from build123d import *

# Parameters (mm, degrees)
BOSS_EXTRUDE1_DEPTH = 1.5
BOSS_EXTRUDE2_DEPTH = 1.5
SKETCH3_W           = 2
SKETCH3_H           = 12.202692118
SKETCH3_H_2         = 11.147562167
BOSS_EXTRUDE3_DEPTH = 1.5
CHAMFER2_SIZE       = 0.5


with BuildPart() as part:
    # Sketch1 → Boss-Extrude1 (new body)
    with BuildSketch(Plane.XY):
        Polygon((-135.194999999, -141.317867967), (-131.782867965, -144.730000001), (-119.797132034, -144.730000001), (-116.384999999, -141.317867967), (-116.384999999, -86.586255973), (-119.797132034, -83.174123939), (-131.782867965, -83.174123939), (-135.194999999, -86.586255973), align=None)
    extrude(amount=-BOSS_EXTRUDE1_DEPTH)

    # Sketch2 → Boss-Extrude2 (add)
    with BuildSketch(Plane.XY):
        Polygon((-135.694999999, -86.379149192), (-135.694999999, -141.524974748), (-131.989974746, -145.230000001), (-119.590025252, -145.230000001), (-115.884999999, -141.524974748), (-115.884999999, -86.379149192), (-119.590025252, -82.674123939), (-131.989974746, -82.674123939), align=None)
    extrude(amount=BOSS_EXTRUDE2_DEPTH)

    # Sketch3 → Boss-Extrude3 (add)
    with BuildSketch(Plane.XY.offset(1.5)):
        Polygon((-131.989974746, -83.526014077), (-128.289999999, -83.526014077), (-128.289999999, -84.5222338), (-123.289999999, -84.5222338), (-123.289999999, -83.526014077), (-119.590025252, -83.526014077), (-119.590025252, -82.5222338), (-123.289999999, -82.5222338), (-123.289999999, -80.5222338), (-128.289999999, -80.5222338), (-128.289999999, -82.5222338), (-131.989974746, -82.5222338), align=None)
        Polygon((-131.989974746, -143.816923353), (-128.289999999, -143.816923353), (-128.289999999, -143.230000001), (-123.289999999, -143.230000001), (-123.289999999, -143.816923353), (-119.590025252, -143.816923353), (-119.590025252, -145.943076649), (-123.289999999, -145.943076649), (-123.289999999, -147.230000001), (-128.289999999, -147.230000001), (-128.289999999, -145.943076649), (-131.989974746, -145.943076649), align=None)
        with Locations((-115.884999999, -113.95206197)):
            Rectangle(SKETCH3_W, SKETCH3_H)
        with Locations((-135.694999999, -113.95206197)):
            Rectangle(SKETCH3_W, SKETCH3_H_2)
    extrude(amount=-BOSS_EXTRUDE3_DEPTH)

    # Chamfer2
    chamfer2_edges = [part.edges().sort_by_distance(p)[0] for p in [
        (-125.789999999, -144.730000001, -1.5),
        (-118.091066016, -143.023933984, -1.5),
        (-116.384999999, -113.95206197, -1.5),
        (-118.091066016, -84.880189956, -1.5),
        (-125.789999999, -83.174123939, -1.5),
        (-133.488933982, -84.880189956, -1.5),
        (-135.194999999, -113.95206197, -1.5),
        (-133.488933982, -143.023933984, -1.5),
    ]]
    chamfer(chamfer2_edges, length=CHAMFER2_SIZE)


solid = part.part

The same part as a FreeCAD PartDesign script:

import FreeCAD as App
import Part
import Sketcher

V = App.Vector
Q = App.Units.Quantity


def edges_at(feature, points):
    """Names of the edges that pass closest to the given points."""
    edges = feature.Shape.Edges
    near = lambda p: min(range(len(edges)), key=lambda i: edges[i].distToShape(Part.Vertex(*p))[0])
    return sorted({f"Edge{near(p) + 1}" for p in points})


def add_polygon(sketch, points):
    """Adds a closed chain of lines whose ends are joined by coincident constraints."""
    first, n = sketch.GeometryCount, len(points)
    for a, b in zip(points, points[1:] + points[:1]):
        sketch.addGeometry(Part.LineSegment(App.Vector(*a, 0), App.Vector(*b, 0)), False)
    for i in range(n):
        sketch.addConstraint(Sketcher.Constraint("Coincident", first + i, 2, first + (i + 1) % n, 1))

doc = App.newDocument("Part")
params = doc.addObject("Spreadsheet::Sheet", "Params")
for row, (alias, value) in enumerate([
    ("pad1_length", "1.5 mm"),
    ("pad2_length", "1.5 mm"),
    ("sketch3_width", "5 mm"),
    ("sketch3_width2", "2 mm"),
    ("pad3_length", "1.5 mm"),
    ("chamfer_size", "0.5 mm"),
], start=1):
    params.set(f"A{row}", alias)
    params.set(f"B{row}", "=" + value)
    params.setAlias(f"B{row}", alias)

body = doc.addObject("PartDesign::Body", "Body")

# Sketch on XY plane
sketch1 = body.newObject("Sketcher::SketchObject", "Sketch")
sketch1.AttachmentSupport = (doc.getObject("XY_Plane"), [""])
sketch1.MapMode = "FlatFace"
add_polygon(sketch1, [(-135.195, -141.317868), (-131.782868, -144.73), (-119.797132, -144.73), (-116.385, -141.317868), (-116.385, -86.586256), (-119.797132, -83.174124), (-131.782868, -83.174124), (-135.195, -86.586256)])  # lines 0-7
sketch1.addConstraint([
    Sketcher.Constraint("Horizontal", 1),
    Sketcher.Constraint("Vertical", 3),
    Sketcher.Constraint("Horizontal", 5),
    Sketcher.Constraint("Vertical", 7),
    Sketcher.Constraint("Perpendicular", 0, 2),
    Sketcher.Constraint("Perpendicular", 2, 4),
    Sketcher.Constraint("Perpendicular", 4, 6),
    Sketcher.Constraint("Horizontal", 3, 2, 6, 2),
    Sketcher.Constraint("Horizontal", 2, 2, 7, 2),
    Sketcher.Constraint("Vertical", 1, 2, 4, 2),
    Sketcher.Constraint("Vertical", 0, 2, 5, 2),
    Sketcher.Constraint("DistanceY", 0, 2, -1, 1, Q("144.73 mm")),
    Sketcher.Constraint("DistanceX", 6, 2, 3, 2, Q("18.81 mm")),
    Sketcher.Constraint("DistanceX", 2, 2, -1, 1, Q("116.385 mm")),
    Sketcher.Constraint("DistanceY", 3, 1, 3, 2, Q("54.731612 mm")),
    Sketcher.Constraint("DistanceX", 1, 1, 1, 2, Q("11.985736 mm")),
])
pad1 = body.newObject("PartDesign::Pad", "Pad")
pad1.Profile = sketch1
pad1.setExpression("Length", "Params.pad1_length")
pad1.Reversed = True

# Sketch on XY plane
sketch2 = body.newObject("Sketcher::SketchObject", "Sketch001")
sketch2.AttachmentSupport = (doc.getObject("XY_Plane"), [""])
sketch2.MapMode = "FlatFace"
add_polygon(sketch2, [(-135.695, -86.379149), (-135.695, -141.524975), (-131.989975, -145.23), (-119.590025, -145.23), (-115.885, -141.524975), (-115.885, -86.379149), (-119.590025, -82.674124), (-131.989975, -82.674124)])  # lines 0-7
sketch2.addConstraint([
    Sketcher.Constraint("Vertical", 0),
    Sketcher.Constraint("Horizontal", 2),
    Sketcher.Constraint("Vertical", 4),
    Sketcher.Constraint("Horizontal", 6),
    Sketcher.Constraint("Perpendicular", 1, 3),
    Sketcher.Constraint("Perpendicular", 3, 5),
    Sketcher.Constraint("Perpendicular", 5, 7),
    Sketcher.Constraint("Horizontal", 0, 2, 3, 2),
    Sketcher.Constraint("Horizontal", 4, 2, 7, 2),
    Sketcher.Constraint("Vertical", 2, 2, 5, 2),
    Sketcher.Constraint("Vertical", 1, 2, 6, 2),
    Sketcher.Constraint("DistanceY", 1, 2, -1, 1, Q("145.23 mm")),
    Sketcher.Constraint("DistanceX", 0, 2, 3, 2, Q("19.81 mm")),
    Sketcher.Constraint("DistanceX", 0, 2, -1, 1, Q("135.695 mm")),
    Sketcher.Constraint("DistanceX", 2, 1, 2, 2, Q("12.399949 mm")),
    Sketcher.Constraint("DistanceY", 0, 2, 0, 1, Q("55.145826 mm")),
])
pad2 = body.newObject("PartDesign::Pad", "Pad001")
pad2.Profile = sketch2
pad2.setExpression("Length", "Params.pad2_length")

# Sketch on XY plane
sketch3 = body.newObject("Sketcher::SketchObject", "Sketch002")
sketch3.AttachmentSupport = (doc.getObject("XY_Plane"), [""])
sketch3.MapMode = "FlatFace"
sketch3.AttachmentOffset = App.Placement(V(0, 0, 1.5), App.Rotation())
add_polygon(sketch3, [(-131.989975, -83.526014), (-128.29, -83.526014), (-128.29, -84.522234), (-123.29, -84.522234), (-123.29, -83.526014), (-119.590025, -83.526014), (-119.590025, -82.522234), (-123.29, -82.522234), (-123.29, -80.522234), (-128.29, -80.522234), (-128.29, -82.522234), (-131.989975, -82.522234)])  # lines 0-11
add_polygon(sketch3, [(-128.29, -143.816923), (-131.989975, -143.816923), (-131.989975, -145.943077), (-128.29, -145.943077), (-128.29, -147.23), (-123.29, -147.23), (-123.29, -145.943077), (-119.590025, -145.943077), (-119.590025, -143.816923), (-123.29, -143.816923), (-123.29, -143.23), (-128.29, -143.23)])  # lines 12-23
add_polygon(sketch3, [(-116.885, -107.850716), (-116.885, -120.053408), (-114.885, -120.053408), (-114.885, -107.850716)])  # lines 24-27
add_polygon(sketch3, [(-136.695, -108.378281), (-136.695, -119.525843), (-134.695, -119.525843), (-134.695, -108.378281)])  # lines 28-31
sketch3.addConstraint([
    Sketcher.Constraint("Horizontal", 0),
    Sketcher.Constraint("Vertical", 1),
    Sketcher.Constraint("Horizontal", 2),
    Sketcher.Constraint("Vertical", 3),
    Sketcher.Constraint("Horizontal", 4),
    Sketcher.Constraint("Vertical", 5),
    Sketcher.Constraint("Horizontal", 6),
    Sketcher.Constraint("Vertical", 7),
    Sketcher.Constraint("Horizontal", 8),
    Sketcher.Constraint("Vertical", 9),
    Sketcher.Constraint("Horizontal", 10),
    Sketcher.Constraint("Vertical", 11),
    Sketcher.Constraint("Horizontal", 12),
    Sketcher.Constraint("Vertical", 13),
    Sketcher.Constraint("Horizontal", 14),
    Sketcher.Constraint("Vertical", 15),
    Sketcher.Constraint("Horizontal", 16),
    Sketcher.Constraint("Vertical", 17),
    Sketcher.Constraint("Horizontal", 18),
    Sketcher.Constraint("Vertical", 19),
    Sketcher.Constraint("Horizontal", 20),
    Sketcher.Constraint("Vertical", 21),
    Sketcher.Constraint("Horizontal", 22),
    Sketcher.Constraint("Vertical", 23),
    Sketcher.Constraint("Vertical", 24),
    Sketcher.Constraint("Horizontal", 25),
    Sketcher.Constraint("Vertical", 26),
    Sketcher.Constraint("Horizontal", 27),
    Sketcher.Constraint("Vertical", 28),
    Sketcher.Constraint("Horizontal", 29),
    Sketcher.Constraint("Vertical", 30),
    Sketcher.Constraint("Horizontal", 31),
    Sketcher.Constraint("Horizontal", 0, 2, 3, 2),
    Sketcher.Constraint("Horizontal", 6, 2, 9, 2),
    Sketcher.Constraint("Horizontal", 14, 2, 17, 2),
    Sketcher.Constraint("Horizontal", 12, 2, 19, 2),
    Sketcher.Constraint("Vertical", 3, 2, 6, 2),
    Sketcher.Constraint("Vertical", 1, 2, 8, 2),
    Sketcher.Constraint("Vertical", 11, 2, 12, 2),
    Sketcher.Constraint("Vertical", 9, 2, 14, 2),
    Sketcher.Constraint("Vertical", 7, 2, 16, 2),
    Sketcher.Constraint("Vertical", 5, 2, 18, 2),
    Sketcher.Constraint("Vertical", 17, 2, 20, 2),
    Sketcher.Constraint("Vertical", 15, 2, 22, 2),
    Sketcher.Constraint("Equal", 0, 4),
    Sketcher.Constraint("Equal", 27, 29),
    Sketcher.Constraint("Equal", 31, 7),
    Sketcher.Constraint("DistanceX", 2, 1, 2, 2, Q("5 mm")),
    Sketcher.Constraint("DistanceX", 25, 1, 25, 2, Q("2 mm")),
    Sketcher.Constraint("DistanceY", 2, 2, 5, 2, Q("2 mm")),
    Sketcher.Constraint("DistanceY", 16, 2, 21, 2, Q("4 mm")),
    Sketcher.Constraint("DistanceX", 0, 2, -1, 1, Q("128.29 mm")),
    Sketcher.Constraint("DistanceY", 15, 2, -1, 1, Q("147.23 mm")),
    Sketcher.Constraint("DistanceX", 28, 2, 24, 2, Q("19.81 mm")),
    Sketcher.Constraint("DistanceX", 24, 2, -1, 1, Q("116.885 mm")),
    Sketcher.Constraint("DistanceY", 1, 2, 1, 1, Q("0.99622 mm")),
    Sketcher.Constraint("DistanceY", 26, 2, 4, 2, Q("24.324702 mm")),
    Sketcher.Constraint("DistanceX", 0, 1, 0, 2, Q("3.699975 mm")),
    Sketcher.Constraint("DistanceY", 13, 2, 13, 1, Q("2.126153 mm")),
    Sketcher.Constraint("DistanceY", 15, 2, 15, 1, Q("1.286923 mm")),
    Sketcher.Constraint("DistanceY", 24, 2, 24, 1, Q("12.202692 mm")),
    Sketcher.Constraint("DistanceY", 28, 2, 28, 1, Q("11.147562 mm")),
    Sketcher.Constraint("DistanceY", 24, 2, -1, 1, Q("120.053408 mm")),
    Sketcher.Constraint("DistanceY", 30, 2, -1, 1, Q("108.378281 mm")),
])
sketch3.setExpression("Constraints[79]", "Params.sketch3_width")
sketch3.setExpression("Constraints[80]", "Params.sketch3_width2")
pad3 = body.newObject("PartDesign::Pad", "Pad002")
pad3.Profile = sketch3
pad3.setExpression("Length", "Params.pad3_length")
pad3.Reversed = True
doc.recompute()

chamfer = body.newObject("PartDesign::Chamfer", "Chamfer")
chamfer.Base = (pad3, edges_at(pad3, [
    (-125.79, -144.73, -1.5),
    (-118.091, -143.024, -1.5),
    (-116.385, -113.952, -1.5),
    (-118.091, -84.88, -1.5),
    (-125.79, -83.174, -1.5),
    (-133.489, -84.88, -1.5),
    (-135.195, -113.952, -1.5),
    (-133.489, -143.024, -1.5),
]))
chamfer.setExpression("Size", "Params.chamfer_size")

doc.recompute()
